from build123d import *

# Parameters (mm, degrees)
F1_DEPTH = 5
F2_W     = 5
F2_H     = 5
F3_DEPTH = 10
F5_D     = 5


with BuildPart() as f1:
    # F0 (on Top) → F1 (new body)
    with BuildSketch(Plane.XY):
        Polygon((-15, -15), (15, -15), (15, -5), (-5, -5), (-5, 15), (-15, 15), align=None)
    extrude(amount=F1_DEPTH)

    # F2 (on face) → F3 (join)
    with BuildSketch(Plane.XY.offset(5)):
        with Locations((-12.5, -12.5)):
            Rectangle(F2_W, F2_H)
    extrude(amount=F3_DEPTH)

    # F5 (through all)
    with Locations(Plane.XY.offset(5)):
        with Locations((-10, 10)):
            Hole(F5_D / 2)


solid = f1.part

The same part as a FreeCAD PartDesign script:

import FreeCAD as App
import Part
import Sketcher

doc = App.newDocument("Part")
body = doc.addObject("PartDesign::Body", "Body")

sketch1 = doc.addObject("Sketcher::SketchObject", "Sketch")
body.addObject(sketch1)
sketch1.AttachmentSupport = (doc.XY_Plane, [""])
sketch1.MapMode = "FlatFace"
sketch1.addGeometry([
    Part.LineSegment(App.Vector(-15, -15, 0), App.Vector(15, -15, 0)),
    Part.LineSegment(App.Vector(15, -15, 0), App.Vector(15, -5, 0)),
    Part.LineSegment(App.Vector(15, -5, 0), App.Vector(-5, -5, 0)),
    Part.LineSegment(App.Vector(-5, -5, 0), App.Vector(-5, 15, 0)),
    Part.LineSegment(App.Vector(-5, 15, 0), App.Vector(-15, 15, 0)),
    Part.LineSegment(App.Vector(-15, 15, 0), App.Vector(-15, -15, 0)),
], False)
sketch1.addConstraint([
    Sketcher.Constraint("Coincident", 0, 2, 1, 1),
    Sketcher.Constraint("Coincident", 1, 2, 2, 1),
    Sketcher.Constraint("Coincident", 2, 2, 3, 1),
    Sketcher.Constraint("Coincident", 3, 2, 4, 1),
    Sketcher.Constraint("Coincident", 4, 2, 5, 1),
    Sketcher.Constraint("Coincident", 5, 2, 0, 1),
    Sketcher.Constraint("Horizontal", 0),
    Sketcher.Constraint("Vertical", 1),
    Sketcher.Constraint("Horizontal", 2),
    Sketcher.Constraint("Vertical", 3),
    Sketcher.Constraint("Horizontal", 4),
    Sketcher.Constraint("Vertical", 5),
    Sketcher.Constraint("Symmetric", 0, 2, 4, 2, -1, 1),
    Sketcher.Constraint("Equal", 4, 1),
    Sketcher.Constraint("Equal", 2, 3),
    Sketcher.Constraint("DistanceX", 0, 1, 0, 2, 30.0),
    Sketcher.Constraint("DistanceX", 2, 2, 2, 1, 20.0),
])
pad1 = doc.addObject("PartDesign::Pad", "Pad")
body.addObject(pad1)
pad1.Profile = sketch1
pad1.Length = 5

sketch2 = doc.addObject("Sketcher::SketchObject", "Sketch001")
body.addObject(sketch2)
sketch2.AttachmentSupport = (doc.XY_Plane, [""])
sketch2.MapMode = "FlatFace"
sketch2.AttachmentOffset = App.Placement(App.Vector(0, 0, 5), App.Rotation())
sketch2.addGeometry([
    Part.LineSegment(App.Vector(-15, -10, 0), App.Vector(-15, -15, 0)),
    Part.LineSegment(App.Vector(-15, -15, 0), App.Vector(-10, -15, 0)),
    Part.LineSegment(App.Vector(-10, -15, 0), App.Vector(-10, -10, 0)),
    Part.LineSegment(App.Vector(-10, -10, 0), App.Vector(-15, -10, 0)),
], False)
sketch2.addConstraint([
    Sketcher.Constraint("Coincident", 0, 2, 1, 1),
    Sketcher.Constraint("Coincident", 1, 2, 2, 1),
    Sketcher.Constraint("Coincident", 2, 2, 3, 1),
    Sketcher.Constraint("Coincident", 3, 2, 0, 1),
    Sketcher.Constraint("Vertical", 0),
    Sketcher.Constraint("Horizontal", 1),
    Sketcher.Constraint("Vertical", 2),
    Sketcher.Constraint("Horizontal", 3),
    Sketcher.Constraint("Equal", 3, 0),
    Sketcher.Constraint("DistanceX", 1, 1, 1, 2, 5.0),
    Sketcher.Constraint("DistanceX", 0, 2, -1, 1, 15.0),
    Sketcher.Constraint("DistanceY", 0, 2, -1, 1, 15.0),
])
pad2 = doc.addObject("PartDesign::Pad", "Pad001")
body.addObject(pad2)
pad2.Profile = sketch2
pad2.Length = 10

sketch3 = doc.addObject("Sketcher::SketchObject", "Sketch002")
body.addObject(sketch3)
sketch3.AttachmentSupport = (doc.XY_Plane, [""])
sketch3.MapMode = "FlatFace"
sketch3.AttachmentOffset = App.Placement(App.Vector(0, 0, 5), App.Rotation())
sketch3.addGeometry(Part.Circle(App.Vector(-10, 10, 0), App.Vector(0, 0, 1), 2.5), False)
sketch3.addConstraint([
    Sketcher.Constraint("Diameter", 0, 5.0),
    Sketcher.Constraint("DistanceX", 0, 3, -1, 1, 10.0),
    Sketcher.Constraint("DistanceY", -1, 1, 0, 3, 10.0),
])
doc.recompute()
hole = doc.addObject("PartDesign::Hole", "Hole")
body.addObject(hole)
hole.Profile = sketch3
hole.ThreadType = "None"
hole.Diameter = 5
hole.DepthType = "ThroughAll"

doc.recompute()
